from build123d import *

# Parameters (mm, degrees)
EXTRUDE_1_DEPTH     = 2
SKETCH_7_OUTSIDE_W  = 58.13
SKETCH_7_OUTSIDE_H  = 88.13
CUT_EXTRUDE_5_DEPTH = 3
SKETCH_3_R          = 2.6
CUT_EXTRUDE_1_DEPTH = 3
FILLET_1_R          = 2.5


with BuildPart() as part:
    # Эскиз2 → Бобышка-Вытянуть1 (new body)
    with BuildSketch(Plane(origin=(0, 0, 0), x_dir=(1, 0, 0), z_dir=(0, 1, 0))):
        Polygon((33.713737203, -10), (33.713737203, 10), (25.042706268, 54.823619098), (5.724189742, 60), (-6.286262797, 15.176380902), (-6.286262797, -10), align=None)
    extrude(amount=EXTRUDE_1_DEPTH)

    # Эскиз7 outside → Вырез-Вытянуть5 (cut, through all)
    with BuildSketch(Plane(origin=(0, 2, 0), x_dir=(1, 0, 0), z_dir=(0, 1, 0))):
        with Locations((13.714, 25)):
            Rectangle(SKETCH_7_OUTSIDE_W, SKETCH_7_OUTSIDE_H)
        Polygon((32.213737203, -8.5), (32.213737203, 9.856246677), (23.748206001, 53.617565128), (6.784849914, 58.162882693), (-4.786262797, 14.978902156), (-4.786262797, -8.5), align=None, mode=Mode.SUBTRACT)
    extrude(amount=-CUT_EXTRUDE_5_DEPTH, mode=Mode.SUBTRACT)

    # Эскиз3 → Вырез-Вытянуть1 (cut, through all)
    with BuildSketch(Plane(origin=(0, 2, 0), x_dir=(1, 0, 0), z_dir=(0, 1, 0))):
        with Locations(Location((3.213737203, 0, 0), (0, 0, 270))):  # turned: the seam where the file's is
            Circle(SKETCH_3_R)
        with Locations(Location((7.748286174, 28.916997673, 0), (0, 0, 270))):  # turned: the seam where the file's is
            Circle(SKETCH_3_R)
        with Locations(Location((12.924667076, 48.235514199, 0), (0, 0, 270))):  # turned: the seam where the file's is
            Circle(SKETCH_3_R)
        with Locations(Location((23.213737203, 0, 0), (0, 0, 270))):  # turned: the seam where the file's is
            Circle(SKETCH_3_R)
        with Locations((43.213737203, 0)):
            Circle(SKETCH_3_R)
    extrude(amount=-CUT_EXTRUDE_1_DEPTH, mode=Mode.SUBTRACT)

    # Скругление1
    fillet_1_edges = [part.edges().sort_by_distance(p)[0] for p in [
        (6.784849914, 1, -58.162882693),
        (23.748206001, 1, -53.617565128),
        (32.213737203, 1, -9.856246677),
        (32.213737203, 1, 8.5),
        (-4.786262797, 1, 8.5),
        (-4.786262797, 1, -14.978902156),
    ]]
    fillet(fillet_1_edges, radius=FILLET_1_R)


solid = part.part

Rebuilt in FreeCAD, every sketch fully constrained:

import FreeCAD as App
import Part
import Sketcher
Q = App.Units.Quantity


def edges_at(feature, points):
    """Names of the edges that pass closest to the given points."""
    edges = feature.Shape.Edges
    near = lambda p: min(range(len(edges)), key=lambda i: edges[i].distToShape(Part.Vertex(*p))[0])
    return sorted({f"Edge{near(p) + 1}" for p in points})

doc = App.newDocument("Part")
body = doc.addObject("PartDesign::Body", "Body")

sketch1 = doc.addObject("Sketcher::SketchObject", "Sketch")
body.addObject(sketch1)
sketch1.AttachmentSupport = (doc.XZ_Plane, [""])
sketch1.MapMode = "FlatFace"
sketch1.addGeometry([
    Part.LineSegment(App.Vector(34, 10, 0), App.Vector(34, -10, 0)),
    Part.LineSegment(App.Vector(34, -10, 0), App.Vector(25, -55, 0)),
    Part.LineSegment(App.Vector(25, -55, 0), App.Vector(6, -60, 0)),
    Part.LineSegment(App.Vector(6, -60, 0), App.Vector(-6, -15, 0)),
    Part.LineSegment(App.Vector(-6, -15, 0), App.Vector(-6, 10, 0)),
    Part.LineSegment(App.Vector(-6, 10, 0), App.Vector(34, 10, 0)),
], False)
sketch1.addConstraint([
    Sketcher.Constraint("Coincident", 0, 2, 1, 1),
    Sketcher.Constraint("Coincident", 1, 2, 2, 1),
    Sketcher.Constraint("Coincident", 2, 2, 3, 1),
    Sketcher.Constraint("Coincident", 3, 2, 4, 1),
    Sketcher.Constraint("Coincident", 4, 2, 5, 1),
    Sketcher.Constraint("Coincident", 5, 2, 0, 1),
    Sketcher.Constraint("Vertical", 0),
    Sketcher.Constraint("Vertical", 4),
    Sketcher.Constraint("Horizontal", 5),
    Sketcher.Constraint("Perpendicular", 2, 3),
    Sketcher.Constraint("DistanceX", 5, 1, 5, 2, Q("40 mm")),
    Sketcher.Constraint("DistanceY", 0, 2, 0, 1, Q("20 mm")),
    Sketcher.Constraint("Angle", 2, Q("-165 deg")),
    Sketcher.Constraint("Distance", 2, Q("20 mm")),
    Sketcher.Constraint("DistanceY", 0, 2, -1, 1, Q("10 mm")),
    Sketcher.Constraint("DistanceY", 2, 2, -1, 1, Q("60 mm")),
    Sketcher.Constraint("DistanceY", 4, 1, 4, 2, Q("25.176381 mm")),
    Sketcher.Constraint("DistanceX", -1, 1, 2, 2, Q("5.72419 mm")),
])
pad1 = doc.addObject("PartDesign::Pad", "Pad")
body.addObject(pad1)
pad1.Profile = sketch1
pad1.Length = 2
pad1.Reversed = True

sketch2 = doc.addObject("Sketcher::SketchObject", "Sketch001")
body.addObject(sketch2)
sketch2.AttachmentSupport = (doc.XZ_Plane, [""])
sketch2.MapMode = "FlatFace"
sketch2.AttachmentOffset = App.Placement(App.Vector(0, 0, -2), App.Rotation())
sketch2.addGeometry([
    Part.LineSegment(App.Vector(-15, -69, 0), App.Vector(-15, 19, 0)),
    Part.LineSegment(App.Vector(-15, 19, 0), App.Vector(43, 19, 0)),
    Part.LineSegment(App.Vector(43, 19, 0), App.Vector(43, -69, 0)),
    Part.LineSegment(App.Vector(43, -69, 0), App.Vector(-15, -69, 0)),
    Part.LineSegment(App.Vector(32, -10, 0), App.Vector(32, 8, 0)),
    Part.LineSegment(App.Vector(32, 8, 0), App.Vector(-5, 8, 0)),
    Part.LineSegment(App.Vector(-5, 8, 0), App.Vector(-5, -15, 0)),
    Part.LineSegment(App.Vector(-5, -15, 0), App.Vector(7, -58, 0)),
    Part.LineSegment(App.Vector(7, -58, 0), App.Vector(24, -54, 0)),
    Part.LineSegment(App.Vector(24, -54, 0), App.Vector(32, -10, 0)),
], False)
sketch2.addConstraint([
    Sketcher.Constraint("Coincident", 0, 2, 1, 1),
    Sketcher.Constraint("Coincident", 1, 2, 2, 1),
    Sketcher.Constraint("Coincident", 2, 2, 3, 1),
    Sketcher.Constraint("Coincident", 3, 2, 0, 1),
    Sketcher.Constraint("Coincident", 4, 2, 5, 1),
    Sketcher.Constraint("Coincident", 5, 2, 6, 1),
    Sketcher.Constraint("Coincident", 6, 2, 7, 1),
    Sketcher.Constraint("Coincident", 7, 2, 8, 1),
    Sketcher.Constraint("Coincident", 8, 2, 9, 1),
    Sketcher.Constraint("Coincident", 9, 2, 4, 1),
    Sketcher.Constraint("Vertical", 0),
    Sketcher.Constraint("Horizontal", 1),
    Sketcher.Constraint("Vertical", 2),
    Sketcher.Constraint("Horizontal", 3),
    Sketcher.Constraint("Vertical", 4),
    Sketcher.Constraint("Horizontal", 5),
    Sketcher.Constraint("Vertical", 6),
    Sketcher.Constraint("Perpendicular", 7, 8),
    Sketcher.Constraint("DistanceX", 5, 2, 5, 1, Q("37 mm")),
    Sketcher.Constraint("Angle", 7, Q("-75 deg")),
    Sketcher.Constraint("DistanceX", 1, 1, 1, 2, Q("58.13 mm")),
    Sketcher.Constraint("DistanceY", 0, 1, 0, 2, Q("88.13 mm")),
    Sketcher.Constraint("DistanceY", -1, 1, 4, 2, Q("8.5 mm")),
    Sketcher.Constraint("DistanceX", 0, 2, -1, 1, Q("15.351 mm")),
    Sketcher.Constraint("DistanceY", -1, 1, 0, 2, Q("19.065 mm")),
    Sketcher.Constraint("Distance", 8, Q("17.561758 mm")),
    Sketcher.Constraint("DistanceY", 4, 1, 4, 2, Q("18.356247 mm")),
    Sketcher.Constraint("DistanceY", 6, 2, 6, 1, Q("23.478902 mm")),
    Sketcher.Constraint("DistanceX", -1, 1, 7, 2, Q("6.78485 mm")),
    Sketcher.Constraint("DistanceY", 7, 2, 6, 2, Q("43.183981 mm")),
])
pocket1 = doc.addObject("PartDesign::Pocket", "Pocket")
body.addObject(pocket1)
pocket1.Profile = sketch2
pocket1.Type = "ThroughAll"
pocket1.Reversed = True

sketch3 = doc.addObject("Sketcher::SketchObject", "Sketch002")
body.addObject(sketch3)
sketch3.AttachmentSupport = (doc.XZ_Plane, [""])
sketch3.MapMode = "FlatFace"
sketch3.AttachmentOffset = App.Placement(App.Vector(0, 0, -2), App.Rotation())
sketch3.addGeometry([
    Part.Circle(App.Vector(3.2, 0, 0), App.Vector(0, 0, 1), 2.6),
    Part.Circle(App.Vector(7.7, -28.9, 0), App.Vector(0, 0, 1), 2.6),
    Part.Circle(App.Vector(12.9, -48.2, 0), App.Vector(0, 0, 1), 2.6),
    Part.Circle(App.Vector(23.2, 0, 0), App.Vector(0, 0, 1), 2.6),
    Part.Circle(App.Vector(43.2, 0, 0), App.Vector(0, 0, 1), 2.6),
], False)
sketch3.addConstraint([
    Sketcher.Constraint("Equal", 0, 1),
    Sketcher.Constraint("Equal", 1, 2),
    Sketcher.Constraint("Equal", 2, 3),
    Sketcher.Constraint("Equal", 3, 4),
    Sketcher.Constraint("PointOnObject", 0, 3, -1),
    Sketcher.Constraint("PointOnObject", 3, 3, -1),
    Sketcher.Constraint("PointOnObject", 4, 3, -1),
    Sketcher.Constraint("Diameter", 0, Q("5.2 mm")),
    Sketcher.Constraint("DistanceX", 0, 3, 3, 3, Q("20 mm")),
    Sketcher.Constraint("DistanceX", 3, 3, 4, 3, Q("20 mm")),
    Sketcher.Constraint("DistanceX", 0, 3, 1, 3, Q("4.534549 mm")),
    Sketcher.Constraint("DistanceX", 1, 3, 2, 3, Q("5.176381 mm")),
    Sketcher.Constraint("DistanceX", -1, 1, 0, 3, Q("3.213737 mm")),
    Sketcher.Constraint("DistanceY", 1, 3, -1, 1, Q("28.916998 mm")),
    Sketcher.Constraint("DistanceY", 2, 3, -1, 1, Q("48.235514 mm")),
])
pocket2 = doc.addObject("PartDesign::Pocket", "Pocket001")
body.addObject(pocket2)
pocket2.Profile = sketch3
pocket2.Type = "ThroughAll"
pocket2.Reversed = True
doc.recompute()

fillet = doc.addObject("PartDesign::Fillet", "Fillet")
body.addObject(fillet)
fillet.Base = (pocket2, edges_at(pocket2, [
    (6.785, 1, -58.163),
    (23.748, 1, -53.618),
    (32.214, 1, -9.856),
    (32.214, 1, 8.5),
    (-4.786, 1, 8.5),
    (-4.786, 1, -14.979),
]))
fillet.Radius = 2.5

doc.recompute()
